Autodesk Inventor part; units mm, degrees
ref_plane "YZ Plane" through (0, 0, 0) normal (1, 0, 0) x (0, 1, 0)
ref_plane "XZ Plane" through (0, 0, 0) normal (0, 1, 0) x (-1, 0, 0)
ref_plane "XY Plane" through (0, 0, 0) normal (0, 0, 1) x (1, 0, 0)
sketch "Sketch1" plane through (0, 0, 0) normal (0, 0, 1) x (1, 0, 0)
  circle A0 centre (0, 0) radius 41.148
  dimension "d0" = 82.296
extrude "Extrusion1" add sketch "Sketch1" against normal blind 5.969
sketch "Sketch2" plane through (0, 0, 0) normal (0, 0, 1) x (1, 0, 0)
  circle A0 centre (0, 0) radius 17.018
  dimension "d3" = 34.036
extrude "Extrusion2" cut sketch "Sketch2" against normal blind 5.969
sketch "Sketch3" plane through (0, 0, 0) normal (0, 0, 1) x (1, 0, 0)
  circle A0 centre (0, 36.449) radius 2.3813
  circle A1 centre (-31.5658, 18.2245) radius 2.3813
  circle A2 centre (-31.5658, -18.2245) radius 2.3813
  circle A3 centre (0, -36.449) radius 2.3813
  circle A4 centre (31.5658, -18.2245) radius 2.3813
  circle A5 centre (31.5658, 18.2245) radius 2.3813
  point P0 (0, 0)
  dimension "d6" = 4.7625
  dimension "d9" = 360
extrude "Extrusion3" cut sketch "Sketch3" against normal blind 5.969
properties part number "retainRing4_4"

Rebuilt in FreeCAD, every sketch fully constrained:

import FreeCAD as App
import Part
import Sketcher

V = App.Vector
Q = App.Units.Quantity

doc = App.newDocument("Part")
body = doc.addObject("PartDesign::Body", "Body")

# Sketch on XY plane
sketch1 = body.newObject("Sketcher::SketchObject", "Sketch")
sketch1.AttachmentSupport = (doc.getObject("XY_Plane"), [""])
sketch1.MapMode = "FlatFace"
sketch1.addGeometry(Part.Circle(V(0, 0, 0), V(0, 0, 1), 41), False)
sketch1.addConstraint(Sketcher.Constraint("Coincident", 0, 3, -1, 1))
sketch1.addConstraint(Sketcher.Constraint("Diameter", 0, Q("3.24 in")))
pad1 = body.newObject("PartDesign::Pad", "Pad")
pad1.Profile = sketch1
pad1.Length = Q("0.235 in")
pad1.Reversed = True

# Sketch on XY plane
sketch2 = body.newObject("Sketcher::SketchObject", "Sketch001")
sketch2.AttachmentSupport = (doc.getObject("XY_Plane"), [""])
sketch2.MapMode = "FlatFace"
sketch2.addGeometry(Part.Circle(V(0, 0, 0), V(0, 0, 1), 17), False)
sketch2.addConstraint(Sketcher.Constraint("Coincident", 0, 3, -1, 1))
sketch2.addConstraint(Sketcher.Constraint("Diameter", 0, Q("1.34 in")))
pocket1 = body.newObject("PartDesign::Pocket", "Pocket")
pocket1.Profile = sketch2
pocket1.Length = Q("0.235 in")

# Sketch on XY plane
sketch3 = body.newObject("Sketcher::SketchObject", "Sketch002")
sketch3.AttachmentSupport = (doc.getObject("XY_Plane"), [""])
sketch3.MapMode = "FlatFace"
sketch3.addGeometry(Part.Circle(V(0, 36.4, 0), V(0, 0, 1), 2.4), False)
sketch3.addGeometry(Part.Circle(V(-31.6, 18.2, 0), V(0, 0, 1), 2.4), False)
sketch3.addGeometry(Part.Circle(V(-31.6, -18.2, 0), V(0, 0, 1), 2.4), False)
sketch3.addGeometry(Part.Circle(V(0, -36.4, 0), V(0, 0, 1), 2.4), False)
sketch3.addGeometry(Part.Circle(V(31.6, -18.2, 0), V(0, 0, 1), 2.4), False)
sketch3.addGeometry(Part.Circle(V(31.6, 18.2, 0), V(0, 0, 1), 2.4), False)
sketch3.addConstraint(Sketcher.Constraint("Equal", 0, 1))
sketch3.addConstraint(Sketcher.Constraint("Equal", 1, 2))
sketch3.addConstraint(Sketcher.Constraint("Equal", 2, 3))
sketch3.addConstraint(Sketcher.Constraint("Equal", 3, 4))
sketch3.addConstraint(Sketcher.Constraint("Equal", 4, 5))
sketch3.addConstraint(Sketcher.Constraint("Symmetric", 0, 3, 3, 3, -1, 1))
sketch3.addConstraint(Sketcher.Constraint("Symmetric", 1, 3, 4, 3, -1, 1))
sketch3.addConstraint(Sketcher.Constraint("Symmetric", 2, 3, 5, 3, -1, 1))
sketch3.addConstraint(Sketcher.Constraint("Symmetric", 2, 3, 4, 3, -2))
sketch3.addConstraint(Sketcher.Constraint("PointOnObject", 0, 3, -2))
sketch3.addConstraint(Sketcher.Constraint("Diameter", 0, Q("0.1875 in")))
sketch3.addConstraint(Sketcher.Constraint("DistanceY", 3, 3, 0, 3, Q("2.87 in")))
sketch3.addConstraint(Sketcher.Constraint("DistanceY", 2, 3, 1, 3, Q("1.435 in")))
sketch3.addConstraint(Sketcher.Constraint("DistanceX", 2, 3, 4, 3, Q("2.4855 in")))
pocket2 = body.newObject("PartDesign::Pocket", "Pocket001")
pocket2.Profile = sketch3
pocket2.Length = Q("0.235 in")

doc.recompute()
